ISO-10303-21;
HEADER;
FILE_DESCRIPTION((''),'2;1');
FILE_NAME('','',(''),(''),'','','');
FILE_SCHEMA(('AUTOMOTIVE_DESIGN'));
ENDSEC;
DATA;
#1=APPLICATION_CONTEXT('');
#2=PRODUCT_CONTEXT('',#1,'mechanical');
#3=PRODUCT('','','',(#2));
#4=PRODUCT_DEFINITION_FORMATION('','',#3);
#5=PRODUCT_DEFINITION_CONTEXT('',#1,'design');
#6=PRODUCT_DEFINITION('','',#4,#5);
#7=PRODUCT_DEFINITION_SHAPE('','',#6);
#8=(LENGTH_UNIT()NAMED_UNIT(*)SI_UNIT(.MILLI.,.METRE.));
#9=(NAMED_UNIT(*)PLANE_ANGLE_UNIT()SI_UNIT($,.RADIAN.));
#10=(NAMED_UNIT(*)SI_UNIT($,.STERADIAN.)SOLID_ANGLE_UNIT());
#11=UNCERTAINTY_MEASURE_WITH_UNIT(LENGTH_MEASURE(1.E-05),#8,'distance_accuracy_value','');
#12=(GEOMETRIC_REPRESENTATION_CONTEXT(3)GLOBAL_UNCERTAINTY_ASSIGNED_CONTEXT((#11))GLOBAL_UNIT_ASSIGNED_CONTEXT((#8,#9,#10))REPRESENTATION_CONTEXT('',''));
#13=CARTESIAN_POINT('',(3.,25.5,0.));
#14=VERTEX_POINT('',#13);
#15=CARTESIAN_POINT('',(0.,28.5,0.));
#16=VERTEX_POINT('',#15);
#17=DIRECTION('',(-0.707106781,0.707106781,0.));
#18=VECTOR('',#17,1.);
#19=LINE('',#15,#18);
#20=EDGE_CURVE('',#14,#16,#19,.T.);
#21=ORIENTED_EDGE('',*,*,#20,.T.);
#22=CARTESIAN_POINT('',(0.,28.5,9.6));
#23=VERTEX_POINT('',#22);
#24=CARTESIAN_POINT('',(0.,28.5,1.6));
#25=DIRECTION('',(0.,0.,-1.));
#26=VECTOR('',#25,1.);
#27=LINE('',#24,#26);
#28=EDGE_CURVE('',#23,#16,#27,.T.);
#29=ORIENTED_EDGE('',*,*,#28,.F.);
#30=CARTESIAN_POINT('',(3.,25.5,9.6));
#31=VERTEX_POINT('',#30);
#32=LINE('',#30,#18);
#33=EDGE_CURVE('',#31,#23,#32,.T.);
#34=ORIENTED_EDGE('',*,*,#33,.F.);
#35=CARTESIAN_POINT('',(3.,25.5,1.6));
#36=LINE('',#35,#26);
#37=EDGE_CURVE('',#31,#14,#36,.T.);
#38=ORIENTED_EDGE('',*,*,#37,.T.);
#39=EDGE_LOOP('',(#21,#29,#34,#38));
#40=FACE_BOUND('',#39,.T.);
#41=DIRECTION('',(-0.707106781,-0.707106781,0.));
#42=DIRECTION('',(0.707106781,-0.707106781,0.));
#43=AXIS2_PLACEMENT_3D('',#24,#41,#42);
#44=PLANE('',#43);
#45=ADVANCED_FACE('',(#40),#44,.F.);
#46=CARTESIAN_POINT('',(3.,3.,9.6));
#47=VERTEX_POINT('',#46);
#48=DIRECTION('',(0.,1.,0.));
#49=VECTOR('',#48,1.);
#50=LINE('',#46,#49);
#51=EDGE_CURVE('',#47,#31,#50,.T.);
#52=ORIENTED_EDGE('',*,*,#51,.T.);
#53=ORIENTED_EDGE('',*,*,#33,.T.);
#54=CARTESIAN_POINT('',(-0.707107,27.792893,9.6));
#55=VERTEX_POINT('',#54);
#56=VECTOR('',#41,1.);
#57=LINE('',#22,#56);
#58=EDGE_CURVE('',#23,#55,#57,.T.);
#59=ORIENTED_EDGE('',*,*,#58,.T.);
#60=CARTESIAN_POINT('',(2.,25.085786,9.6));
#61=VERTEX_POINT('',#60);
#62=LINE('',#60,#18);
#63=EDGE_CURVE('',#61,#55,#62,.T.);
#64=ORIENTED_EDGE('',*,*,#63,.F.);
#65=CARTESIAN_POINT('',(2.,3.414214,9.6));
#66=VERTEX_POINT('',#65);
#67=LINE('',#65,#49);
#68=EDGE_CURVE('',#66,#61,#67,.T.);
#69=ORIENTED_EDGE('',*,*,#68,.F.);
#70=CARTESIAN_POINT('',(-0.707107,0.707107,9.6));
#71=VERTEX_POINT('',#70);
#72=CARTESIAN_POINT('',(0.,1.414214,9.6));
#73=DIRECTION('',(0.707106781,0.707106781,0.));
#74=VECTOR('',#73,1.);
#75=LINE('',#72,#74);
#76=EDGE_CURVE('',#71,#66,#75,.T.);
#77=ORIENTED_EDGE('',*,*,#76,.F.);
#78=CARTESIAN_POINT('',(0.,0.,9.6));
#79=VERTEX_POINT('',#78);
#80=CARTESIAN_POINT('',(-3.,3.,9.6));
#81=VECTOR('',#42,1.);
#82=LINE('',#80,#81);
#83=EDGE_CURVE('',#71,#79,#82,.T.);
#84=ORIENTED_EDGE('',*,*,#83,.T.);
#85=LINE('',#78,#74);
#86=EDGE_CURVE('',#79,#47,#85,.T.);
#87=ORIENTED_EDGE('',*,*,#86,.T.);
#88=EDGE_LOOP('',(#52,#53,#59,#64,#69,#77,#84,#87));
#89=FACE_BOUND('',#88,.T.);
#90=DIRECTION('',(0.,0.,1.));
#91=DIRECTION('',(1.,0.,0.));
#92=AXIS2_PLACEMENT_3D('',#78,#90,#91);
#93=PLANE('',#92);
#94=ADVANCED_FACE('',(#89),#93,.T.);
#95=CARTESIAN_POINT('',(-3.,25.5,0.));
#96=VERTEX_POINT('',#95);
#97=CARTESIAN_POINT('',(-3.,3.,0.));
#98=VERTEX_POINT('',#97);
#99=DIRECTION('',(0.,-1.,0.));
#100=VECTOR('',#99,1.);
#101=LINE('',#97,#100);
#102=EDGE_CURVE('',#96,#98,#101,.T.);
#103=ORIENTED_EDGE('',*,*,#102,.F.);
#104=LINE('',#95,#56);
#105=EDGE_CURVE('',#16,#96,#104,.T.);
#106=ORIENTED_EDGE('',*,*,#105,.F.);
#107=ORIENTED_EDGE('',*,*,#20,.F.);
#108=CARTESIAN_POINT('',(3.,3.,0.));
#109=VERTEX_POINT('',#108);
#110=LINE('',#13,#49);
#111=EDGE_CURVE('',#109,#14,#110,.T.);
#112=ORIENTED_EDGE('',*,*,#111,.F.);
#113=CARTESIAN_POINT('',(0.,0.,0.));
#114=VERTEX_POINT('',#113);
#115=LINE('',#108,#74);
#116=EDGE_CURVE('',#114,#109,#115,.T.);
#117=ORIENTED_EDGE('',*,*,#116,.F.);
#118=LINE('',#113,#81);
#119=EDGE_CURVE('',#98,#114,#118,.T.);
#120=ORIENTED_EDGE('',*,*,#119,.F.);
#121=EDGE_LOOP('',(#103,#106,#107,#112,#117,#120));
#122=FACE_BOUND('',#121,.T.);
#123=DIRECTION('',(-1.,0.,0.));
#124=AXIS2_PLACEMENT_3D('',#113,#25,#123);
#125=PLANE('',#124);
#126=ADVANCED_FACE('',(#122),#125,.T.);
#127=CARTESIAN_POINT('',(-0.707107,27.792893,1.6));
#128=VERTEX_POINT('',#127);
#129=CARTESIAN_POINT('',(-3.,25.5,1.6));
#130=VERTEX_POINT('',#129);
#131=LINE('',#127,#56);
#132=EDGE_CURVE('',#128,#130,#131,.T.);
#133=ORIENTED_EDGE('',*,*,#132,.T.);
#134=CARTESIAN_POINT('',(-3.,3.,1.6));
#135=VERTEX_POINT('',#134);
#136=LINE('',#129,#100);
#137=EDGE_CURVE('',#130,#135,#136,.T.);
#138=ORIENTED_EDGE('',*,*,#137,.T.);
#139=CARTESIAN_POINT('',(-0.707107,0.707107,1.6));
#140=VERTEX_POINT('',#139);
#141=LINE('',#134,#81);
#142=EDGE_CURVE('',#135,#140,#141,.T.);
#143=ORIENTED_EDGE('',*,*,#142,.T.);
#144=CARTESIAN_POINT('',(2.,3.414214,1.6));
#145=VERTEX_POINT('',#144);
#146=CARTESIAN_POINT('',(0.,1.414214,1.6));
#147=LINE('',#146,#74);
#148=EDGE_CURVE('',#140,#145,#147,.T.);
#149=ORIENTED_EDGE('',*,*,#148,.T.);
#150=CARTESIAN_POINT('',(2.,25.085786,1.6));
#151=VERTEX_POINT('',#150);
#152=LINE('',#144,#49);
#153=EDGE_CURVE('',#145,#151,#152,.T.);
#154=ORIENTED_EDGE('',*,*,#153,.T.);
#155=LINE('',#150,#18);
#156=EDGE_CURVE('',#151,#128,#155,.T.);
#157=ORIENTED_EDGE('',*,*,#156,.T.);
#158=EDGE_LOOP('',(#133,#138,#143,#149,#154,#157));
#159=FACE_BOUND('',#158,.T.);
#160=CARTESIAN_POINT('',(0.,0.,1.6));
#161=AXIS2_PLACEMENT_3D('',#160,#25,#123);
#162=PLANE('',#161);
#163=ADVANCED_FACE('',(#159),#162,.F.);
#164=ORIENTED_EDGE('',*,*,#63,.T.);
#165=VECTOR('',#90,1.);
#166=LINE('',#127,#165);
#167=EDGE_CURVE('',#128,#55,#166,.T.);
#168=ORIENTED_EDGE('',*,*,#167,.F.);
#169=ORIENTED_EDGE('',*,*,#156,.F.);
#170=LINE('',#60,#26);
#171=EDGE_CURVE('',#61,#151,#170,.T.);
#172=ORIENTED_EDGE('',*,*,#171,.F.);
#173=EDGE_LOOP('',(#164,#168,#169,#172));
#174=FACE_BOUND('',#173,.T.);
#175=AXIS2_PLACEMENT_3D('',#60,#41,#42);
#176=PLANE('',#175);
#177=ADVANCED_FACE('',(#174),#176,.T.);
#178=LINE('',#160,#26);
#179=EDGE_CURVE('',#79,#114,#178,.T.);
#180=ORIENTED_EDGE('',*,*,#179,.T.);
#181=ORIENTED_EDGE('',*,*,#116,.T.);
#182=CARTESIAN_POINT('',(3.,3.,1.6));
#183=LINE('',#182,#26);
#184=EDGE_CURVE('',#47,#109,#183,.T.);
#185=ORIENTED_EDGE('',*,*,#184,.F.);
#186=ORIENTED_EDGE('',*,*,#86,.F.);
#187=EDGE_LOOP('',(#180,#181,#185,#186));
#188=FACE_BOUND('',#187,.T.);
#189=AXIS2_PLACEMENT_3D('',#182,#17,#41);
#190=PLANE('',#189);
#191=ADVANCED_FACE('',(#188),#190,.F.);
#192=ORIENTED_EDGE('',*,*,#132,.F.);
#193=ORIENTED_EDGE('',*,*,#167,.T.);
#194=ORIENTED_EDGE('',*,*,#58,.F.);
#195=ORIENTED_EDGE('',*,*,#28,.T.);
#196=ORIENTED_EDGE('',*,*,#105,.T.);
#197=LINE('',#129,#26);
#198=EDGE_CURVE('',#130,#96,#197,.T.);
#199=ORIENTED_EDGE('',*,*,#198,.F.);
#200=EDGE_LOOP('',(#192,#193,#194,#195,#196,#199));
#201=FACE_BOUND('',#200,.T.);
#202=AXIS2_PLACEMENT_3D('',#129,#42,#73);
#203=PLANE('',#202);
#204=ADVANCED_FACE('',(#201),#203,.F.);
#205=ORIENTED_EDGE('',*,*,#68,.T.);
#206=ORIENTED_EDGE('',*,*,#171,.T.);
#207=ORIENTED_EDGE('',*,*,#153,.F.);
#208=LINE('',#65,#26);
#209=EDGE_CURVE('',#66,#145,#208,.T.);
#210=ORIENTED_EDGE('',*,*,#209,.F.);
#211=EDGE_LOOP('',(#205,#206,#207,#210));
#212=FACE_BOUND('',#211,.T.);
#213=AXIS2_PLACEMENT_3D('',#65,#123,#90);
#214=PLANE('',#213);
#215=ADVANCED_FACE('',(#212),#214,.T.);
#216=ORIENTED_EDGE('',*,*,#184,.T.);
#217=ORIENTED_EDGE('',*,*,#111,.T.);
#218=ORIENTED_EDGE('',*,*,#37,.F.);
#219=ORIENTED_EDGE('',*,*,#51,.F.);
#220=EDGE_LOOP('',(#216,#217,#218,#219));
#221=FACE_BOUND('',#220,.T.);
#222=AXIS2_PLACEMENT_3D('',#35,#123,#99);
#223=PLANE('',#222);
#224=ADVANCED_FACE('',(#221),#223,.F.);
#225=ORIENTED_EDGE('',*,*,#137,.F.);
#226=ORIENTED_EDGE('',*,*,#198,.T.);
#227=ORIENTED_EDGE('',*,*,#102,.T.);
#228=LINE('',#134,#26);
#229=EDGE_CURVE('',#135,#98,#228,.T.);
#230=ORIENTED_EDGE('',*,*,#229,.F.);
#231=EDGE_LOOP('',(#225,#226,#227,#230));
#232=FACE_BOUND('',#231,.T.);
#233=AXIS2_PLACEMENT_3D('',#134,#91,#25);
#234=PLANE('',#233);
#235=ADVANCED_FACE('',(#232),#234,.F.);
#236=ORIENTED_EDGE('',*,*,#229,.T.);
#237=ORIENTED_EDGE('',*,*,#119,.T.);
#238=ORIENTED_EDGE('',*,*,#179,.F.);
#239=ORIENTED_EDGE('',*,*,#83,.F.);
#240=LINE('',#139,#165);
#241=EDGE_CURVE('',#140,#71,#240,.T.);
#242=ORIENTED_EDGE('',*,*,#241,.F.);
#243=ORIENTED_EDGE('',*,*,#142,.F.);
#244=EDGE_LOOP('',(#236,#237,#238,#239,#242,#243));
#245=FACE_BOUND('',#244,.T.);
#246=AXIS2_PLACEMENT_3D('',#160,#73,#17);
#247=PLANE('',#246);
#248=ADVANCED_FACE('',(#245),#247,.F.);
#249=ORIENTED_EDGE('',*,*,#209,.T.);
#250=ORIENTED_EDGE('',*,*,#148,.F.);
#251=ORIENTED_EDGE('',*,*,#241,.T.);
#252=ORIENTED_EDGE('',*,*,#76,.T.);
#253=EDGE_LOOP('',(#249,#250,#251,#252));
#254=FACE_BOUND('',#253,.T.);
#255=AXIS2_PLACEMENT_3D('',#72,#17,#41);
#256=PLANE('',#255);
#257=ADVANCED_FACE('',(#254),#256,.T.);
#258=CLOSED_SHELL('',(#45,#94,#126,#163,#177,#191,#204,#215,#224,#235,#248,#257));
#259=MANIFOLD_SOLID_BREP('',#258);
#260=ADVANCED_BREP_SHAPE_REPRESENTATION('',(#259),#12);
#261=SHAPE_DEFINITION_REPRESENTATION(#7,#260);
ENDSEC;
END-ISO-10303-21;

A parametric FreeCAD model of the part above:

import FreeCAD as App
import Part
import Sketcher

V = App.Vector

doc = App.newDocument("Part")
body = doc.addObject("PartDesign::Body", "Body")

sketch1 = body.newObject("Sketcher::SketchObject", "Sketch")
sketch1.AttachmentSupport = (doc.getObject("XY_Plane"), [""])
sketch1.MapMode = "FlatFace"
sketch1.addGeometry(Part.LineSegment(V(-3, 3, 0), V(0, 0, 0)), False)
sketch1.addGeometry(Part.LineSegment(V(0, 0, 0), V(3, 3, 0)), False)
sketch1.addGeometry(Part.LineSegment(V(3, 3, 0), V(3, 25.5, 0)), False)
sketch1.addGeometry(Part.LineSegment(V(3, 25.5, 0), V(0, 28.5, 0)), False)
sketch1.addGeometry(Part.LineSegment(V(0, 28.5, 0), V(-3, 25.5, 0)), False)
sketch1.addGeometry(Part.LineSegment(V(-3, 25.5, 0), V(-3, 3, 0)), False)
sketch1.addConstraint(Sketcher.Constraint("Coincident", 0, 2, 1, 1))
sketch1.addConstraint(Sketcher.Constraint("Coincident", 1, 2, 2, 1))
sketch1.addConstraint(Sketcher.Constraint("Coincident", 2, 2, 3, 1))
sketch1.addConstraint(Sketcher.Constraint("Coincident", 3, 2, 4, 1))
sketch1.addConstraint(Sketcher.Constraint("Coincident", 4, 2, 5, 1))
sketch1.addConstraint(Sketcher.Constraint("Coincident", 5, 2, 0, 1))
sketch1.addConstraint(Sketcher.Constraint("Vertical", 2))
sketch1.addConstraint(Sketcher.Constraint("Vertical", 5))
sketch1.addConstraint(Sketcher.Constraint("Coincident", 0, 2, -1, 1))
sketch1.addConstraint(Sketcher.Constraint("Symmetric", 2, 2, 4, 2, -2))
sketch1.addConstraint(Sketcher.Constraint("PointOnObject", 3, 2, -2))
sketch1.addConstraint(Sketcher.Constraint("Perpendicular", 0, 1))
sketch1.addConstraint(Sketcher.Constraint("Perpendicular", 1, 3))
sketch1.addConstraint(Sketcher.Constraint("Perpendicular", 3, 4))
sketch1.addConstraint(Sketcher.Constraint("DistanceY", 2, 1, 2, 2, 22.5))
sketch1.addConstraint(Sketcher.Constraint("DistanceX", -1, 1, 1, 2, 3.0))
pad1 = body.newObject("PartDesign::Pad", "Pad")
pad1.Profile = sketch1
pad1.Length = 1.6

sketch2 = body.newObject("Sketcher::SketchObject", "Sketch001")
sketch2.AttachmentSupport = (doc.getObject("XY_Plane"), [""])
sketch2.MapMode = "FlatFace"
sketch2.AttachmentOffset = App.Placement(V(0, 0, 1.6), App.Rotation())
sketch2.addGeometry(Part.LineSegment(V(0, 0, 0), V(3, 3, 0)), False)
sketch2.addGeometry(Part.LineSegment(V(3, 3, 0), V(3, 25.5, 0)), False)
sketch2.addGeometry(Part.LineSegment(V(3, 25.5, 0), V(0, 28.5, 0)), False)
sketch2.addGeometry(Part.LineSegment(V(0, 28.5, 0), V(-3, 25.5, 0)), False)
sketch2.addGeometry(Part.LineSegment(V(-3, 25.5, 0), V(-3, 3, 0)), False)
sketch2.addGeometry(Part.LineSegment(V(-3, 3, 0), V(0, 0, 0)), False)
sketch2.addGeometry(Part.LineSegment(V(2, 3.414214, 0), V(0, 1.414214, 0)), False)
sketch2.addGeometry(Part.LineSegment(V(0, 1.414214, 0), V(-2, 3.414214, 0)), False)
sketch2.addGeometry(Part.LineSegment(V(-2, 3.414214, 0), V(-2, 25.085786, 0)), False)
sketch2.addGeometry(Part.LineSegment(V(-2, 25.085786, 0), V(0, 27.085786, 0)), False)
sketch2.addGeometry(Part.LineSegment(V(0, 27.085786, 0), V(2, 25.085786, 0)), False)
sketch2.addGeometry(Part.LineSegment(V(2, 25.085786, 0), V(2, 3.414214, 0)), False)
sketch2.addConstraint(Sketcher.Constraint("Coincident", 0, 2, 1, 1))
sketch2.addConstraint(Sketcher.Constraint("Coincident", 1, 2, 2, 1))
sketch2.addConstraint(Sketcher.Constraint("Coincident", 2, 2, 3, 1))
sketch2.addConstraint(Sketcher.Constraint("Coincident", 3, 2, 4, 1))
sketch2.addConstraint(Sketcher.Constraint("Coincident", 4, 2, 5, 1))
sketch2.addConstraint(Sketcher.Constraint("Coincident", 5, 2, 0, 1))
sketch2.addConstraint(Sketcher.Constraint("Coincident", 6, 2, 7, 1))
sketch2.addConstraint(Sketcher.Constraint("Coincident", 7, 2, 8, 1))
sketch2.addConstraint(Sketcher.Constraint("Coincident", 8, 2, 9, 1))
sketch2.addConstraint(Sketcher.Constraint("Coincident", 9, 2, 10, 1))
sketch2.addConstraint(Sketcher.Constraint("Coincident", 10, 2, 11, 1))
sketch2.addConstraint(Sketcher.Constraint("Coincident", 11, 2, 6, 1))
sketch2.addConstraint(Sketcher.Constraint("Vertical", 1))
sketch2.addConstraint(Sketcher.Constraint("Vertical", 4))
sketch2.addConstraint(Sketcher.Constraint("Vertical", 8))
sketch2.addConstraint(Sketcher.Constraint("Vertical", 11))
sketch2.addConstraint(Sketcher.Constraint("Coincident", 5, 2, -1, 1))
sketch2.addConstraint(Sketcher.Constraint("Symmetric", 1, 2, 3, 2, -2))
sketch2.addConstraint(Sketcher.Constraint("Symmetric", 8, 2, 10, 2, -2))
sketch2.addConstraint(Sketcher.Constraint("PointOnObject", 2, 2, -2))
sketch2.addConstraint(Sketcher.Constraint("PointOnObject", 6, 2, -2))
sketch2.addConstraint(Sketcher.Constraint("PointOnObject", 9, 2, -2))
sketch2.addConstraint(Sketcher.Constraint("Perpendicular", 0, 2))
sketch2.addConstraint(Sketcher.Constraint("Perpendicular", 2, 3))
sketch2.addConstraint(Sketcher.Constraint("Perpendicular", 3, 5))
sketch2.addConstraint(Sketcher.Constraint("Perpendicular", 5, 6))
sketch2.addConstraint(Sketcher.Constraint("Perpendicular", 6, 7))
sketch2.addConstraint(Sketcher.Constraint("Perpendicular", 7, 9))
sketch2.addConstraint(Sketcher.Constraint("DistanceY", 1, 1, 1, 2, 22.5))
sketch2.addConstraint(Sketcher.Constraint("DistanceX", -1, 1, 0, 2, 3.0))
sketch2.addConstraint(Sketcher.Constraint("DistanceX", 7, 2, -1, 1, 2.0))
sketch2.addConstraint(Sketcher.Constraint("DistanceY", 8, 1, 8, 2, 21.671573))
sketch2.addConstraint(Sketcher.Constraint("DistanceY", -1, 1, 6, 2, 1.414214))
pad2 = body.newObject("PartDesign::Pad", "Pad001")
pad2.Profile = sketch2
pad2.Length = 8

sketch3 = body.newObject("Sketcher::SketchObject", "Sketch002")
sketch3.AttachmentSupport = (doc.getObject("XY_Plane"), [""])
sketch3.MapMode = "FlatFace"
sketch3.AttachmentOffset = App.Placement(V(0, 0, 9.6), App.Rotation())
sketch3.addGeometry(Part.LineSegment(V(0, 27.085786, 0), V(-0.707107, 27.792893, 0)), False)
sketch3.addGeometry(Part.LineSegment(V(-0.707107, 27.792893, 0), V(-3, 25.5, 0)), False)
sketch3.addGeometry(Part.LineSegment(V(-3, 25.5, 0), V(-3, 3, 0)), False)
sketch3.addGeometry(Part.LineSegment(V(-3, 3, 0), V(-0.707107, 0.707107, 0)), False)
sketch3.addGeometry(Part.LineSegment(V(-0.707107, 0.707107, 0), V(0, 1.414214, 0)), False)
sketch3.addGeometry(Part.LineSegment(V(0, 1.414214, 0), V(-2, 3.414214, 0)), False)
sketch3.addGeometry(Part.LineSegment(V(-2, 3.414214, 0), V(-2, 25.085786, 0)), False)
sketch3.addGeometry(Part.LineSegment(V(-2, 25.085786, 0), V(0, 27.085786, 0)), False)
sketch3.addConstraint(Sketcher.Constraint("Coincident", 0, 2, 1, 1))
sketch3.addConstraint(Sketcher.Constraint("Coincident", 1, 2, 2, 1))
sketch3.addConstraint(Sketcher.Constraint("Coincident", 2, 2, 3, 1))
sketch3.addConstraint(Sketcher.Constraint("Coincident", 3, 2, 4, 1))
sketch3.addConstraint(Sketcher.Constraint("Coincident", 4, 2, 5, 1))
sketch3.addConstraint(Sketcher.Constraint("Coincident", 5, 2, 6, 1))
sketch3.addConstraint(Sketcher.Constraint("Coincident", 6, 2, 7, 1))
sketch3.addConstraint(Sketcher.Constraint("Coincident", 7, 2, 0, 1))
sketch3.addConstraint(Sketcher.Constraint("Vertical", 2))
sketch3.addConstraint(Sketcher.Constraint("Vertical", 6))
sketch3.addConstraint(Sketcher.Constraint("PointOnObject", 4, 2, -2))
sketch3.addConstraint(Sketcher.Constraint("PointOnObject", 7, 2, -2))
sketch3.addConstraint(Sketcher.Constraint("Perpendicular", 0, 1))
sketch3.addConstraint(Sketcher.Constraint("Perpendicular", 1, 3))
sketch3.addConstraint(Sketcher.Constraint("Perpendicular", 3, 4))
sketch3.addConstraint(Sketcher.Constraint("Perpendicular", 4, 5))
sketch3.addConstraint(Sketcher.Constraint("Perpendicular", 5, 7))
sketch3.addConstraint(Sketcher.Constraint("Vertical", 0, 2, 3, 2))
sketch3.addConstraint(Sketcher.Constraint("Equal", 1, 3))
sketch3.addConstraint(Sketcher.Constraint("Distance", 0, 1.0))
sketch3.addConstraint(Sketcher.Constraint("DistanceY", 2, 2, 2, 1, 22.5))
sketch3.addConstraint(Sketcher.Constraint("DistanceX", 1, 2, -1, 1, 3.0))
sketch3.addConstraint(Sketcher.Constraint("DistanceY", -1, 1, 2, 2, 3.0))
sketch3.addConstraint(Sketcher.Constraint("DistanceX", 5, 2, -1, 1, 2.0))
pocket1 = body.newObject("PartDesign::Pocket", "Pocket")
pocket1.Profile = sketch3
pocket1.Length = 8

doc.recompute()
